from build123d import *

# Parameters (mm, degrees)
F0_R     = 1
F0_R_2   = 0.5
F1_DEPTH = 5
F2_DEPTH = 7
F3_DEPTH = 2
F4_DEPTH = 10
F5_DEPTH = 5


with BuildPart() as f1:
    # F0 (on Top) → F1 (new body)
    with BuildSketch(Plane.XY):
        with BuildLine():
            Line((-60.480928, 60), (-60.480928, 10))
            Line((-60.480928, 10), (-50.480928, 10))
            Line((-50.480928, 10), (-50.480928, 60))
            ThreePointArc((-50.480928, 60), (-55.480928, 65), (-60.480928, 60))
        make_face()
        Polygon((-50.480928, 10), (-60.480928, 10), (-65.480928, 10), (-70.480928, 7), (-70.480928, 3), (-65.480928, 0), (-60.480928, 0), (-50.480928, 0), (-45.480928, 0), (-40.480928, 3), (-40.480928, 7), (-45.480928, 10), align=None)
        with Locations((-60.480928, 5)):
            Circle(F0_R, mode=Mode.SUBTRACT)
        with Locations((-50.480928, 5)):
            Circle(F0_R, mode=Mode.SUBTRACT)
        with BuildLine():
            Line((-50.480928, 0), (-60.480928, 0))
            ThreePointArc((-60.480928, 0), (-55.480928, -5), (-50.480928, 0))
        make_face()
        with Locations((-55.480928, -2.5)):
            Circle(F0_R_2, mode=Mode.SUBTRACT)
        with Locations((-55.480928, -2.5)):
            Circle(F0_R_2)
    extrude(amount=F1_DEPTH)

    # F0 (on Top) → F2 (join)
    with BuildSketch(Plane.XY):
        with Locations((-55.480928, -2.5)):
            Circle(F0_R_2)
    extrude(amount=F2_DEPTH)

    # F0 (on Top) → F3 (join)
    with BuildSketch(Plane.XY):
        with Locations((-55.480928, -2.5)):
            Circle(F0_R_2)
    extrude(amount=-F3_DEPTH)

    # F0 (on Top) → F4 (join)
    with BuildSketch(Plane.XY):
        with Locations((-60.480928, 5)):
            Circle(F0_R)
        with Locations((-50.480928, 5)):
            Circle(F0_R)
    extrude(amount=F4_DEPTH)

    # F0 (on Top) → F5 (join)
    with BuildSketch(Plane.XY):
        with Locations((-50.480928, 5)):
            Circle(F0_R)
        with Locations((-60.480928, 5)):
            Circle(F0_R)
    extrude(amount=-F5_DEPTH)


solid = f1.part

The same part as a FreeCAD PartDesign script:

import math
import FreeCAD as App
import Part
import Sketcher

doc = App.newDocument("Part")
body = doc.addObject("PartDesign::Body", "Body")

# Sketch on XY plane
sketch1 = doc.addObject("Sketcher::SketchObject", "Sketch")
body.addObject(sketch1)
sketch1.AttachmentSupport = (doc.XY_Plane, [""])
sketch1.MapMode = "FlatFace"
sketch1.addGeometry(Part.LineSegment(App.Vector(-60.5, 60, 0), App.Vector(-60.5, 10, 0)), False)
sketch1.addGeometry(Part.LineSegment(App.Vector(-60.5, 10, 0), App.Vector(-65.5, 10, 0)), False)
sketch1.addGeometry(Part.LineSegment(App.Vector(-65.5, 10, 0), App.Vector(-70.5, 7, 0)), False)
sketch1.addGeometry(Part.LineSegment(App.Vector(-70.5, 7, 0), App.Vector(-70.5, 3, 0)), False)
sketch1.addGeometry(Part.LineSegment(App.Vector(-70.5, 3, 0), App.Vector(-65.5, 0, 0)), False)
sketch1.addGeometry(Part.LineSegment(App.Vector(-65.5, 0, 0), App.Vector(-60.5, 0, 0)), False)
sketch1.addGeometry(Part.ArcOfCircle(Part.Circle(App.Vector(-55.5, 0, 0), App.Vector(0, 0, 1), 5), math.radians(180), math.radians(360)), False)
sketch1.addGeometry(Part.LineSegment(App.Vector(-50.5, 0, 0), App.Vector(-45.5, 0, 0)), False)
sketch1.addGeometry(Part.LineSegment(App.Vector(-45.5, 0, 0), App.Vector(-40.5, 3, 0)), False)
sketch1.addGeometry(Part.LineSegment(App.Vector(-40.5, 3, 0), App.Vector(-40.5, 7, 0)), False)
sketch1.addGeometry(Part.LineSegment(App.Vector(-40.5, 7, 0), App.Vector(-45.5, 10, 0)), False)
sketch1.addGeometry(Part.LineSegment(App.Vector(-45.5, 10, 0), App.Vector(-50.5, 10, 0)), False)
sketch1.addGeometry(Part.LineSegment(App.Vector(-50.5, 10, 0), App.Vector(-50.5, 60, 0)), False)
sketch1.addGeometry(Part.ArcOfCircle(Part.Circle(App.Vector(-55.5, 60, 0), App.Vector(0, 0, 1), 5), math.radians(0), math.radians(180)), False)
sketch1.addGeometry(Part.Circle(App.Vector(-60.5, 5, 0), App.Vector(0, 0, 1), 1), False)
sketch1.addGeometry(Part.Circle(App.Vector(-50.5, 5, 0), App.Vector(0, 0, 1), 1), False)
sketch1.addConstraint(Sketcher.Constraint("Coincident", 0, 2, 1, 1))
sketch1.addConstraint(Sketcher.Constraint("Coincident", 1, 2, 2, 1))
sketch1.addConstraint(Sketcher.Constraint("Coincident", 2, 2, 3, 1))
sketch1.addConstraint(Sketcher.Constraint("Coincident", 3, 2, 4, 1))
sketch1.addConstraint(Sketcher.Constraint("Coincident", 4, 2, 5, 1))
sketch1.addConstraint(Sketcher.Constraint("Coincident", 5, 2, 6, 1))
sketch1.addConstraint(Sketcher.Constraint("Coincident", 6, 2, 7, 1))
sketch1.addConstraint(Sketcher.Constraint("Coincident", 7, 2, 8, 1))
sketch1.addConstraint(Sketcher.Constraint("Coincident", 8, 2, 9, 1))
sketch1.addConstraint(Sketcher.Constraint("Coincident", 9, 2, 10, 1))
sketch1.addConstraint(Sketcher.Constraint("Coincident", 10, 2, 11, 1))
sketch1.addConstraint(Sketcher.Constraint("Coincident", 11, 2, 12, 1))
sketch1.addConstraint(Sketcher.Constraint("Tangent", 12, 2, 13, 1))
sketch1.addConstraint(Sketcher.Constraint("Tangent", 13, 2, 0, 1))
sketch1.addConstraint(Sketcher.Constraint("Vertical", 0))
sketch1.addConstraint(Sketcher.Constraint("Horizontal", 1))
sketch1.addConstraint(Sketcher.Constraint("Vertical", 3))
sketch1.addConstraint(Sketcher.Constraint("Horizontal", 5))
sketch1.addConstraint(Sketcher.Constraint("Horizontal", 7))
sketch1.addConstraint(Sketcher.Constraint("Vertical", 9))
sketch1.addConstraint(Sketcher.Constraint("Horizontal", 11))
sketch1.addConstraint(Sketcher.Constraint("Vertical", 12))
sketch1.addConstraint(Sketcher.Constraint("Equal", 6, 13))
sketch1.addConstraint(Sketcher.Constraint("Equal", 14, 15))
sketch1.addConstraint(Sketcher.Constraint("PointOnObject", 6, 3, -1))
sketch1.addConstraint(Sketcher.Constraint("PointOnObject", 4, 2, -1))
sketch1.addConstraint(Sketcher.Constraint("PointOnObject", 6, 2, -1))
sketch1.addConstraint(Sketcher.Constraint("Parallel", 2, 8))
sketch1.addConstraint(Sketcher.Constraint("Parallel", 4, 10))
sketch1.addConstraint(Sketcher.Constraint("Horizontal", 14, 3, 15, 3))
sketch1.addConstraint(Sketcher.Constraint("Horizontal", 3, 2, 8, 2))
sketch1.addConstraint(Sketcher.Constraint("Horizontal", 2, 2, 9, 2))
sketch1.addConstraint(Sketcher.Constraint("Horizontal", 1, 2, 10, 2))
sketch1.addConstraint(Sketcher.Constraint("Vertical", 6, 3, 13, 3))
sketch1.addConstraint(Sketcher.Constraint("Vertical", 14, 3, 0, 2))
sketch1.addConstraint(Sketcher.Constraint("Vertical", 1, 2, 4, 2))
sketch1.addConstraint(Sketcher.Constraint("Vertical", 15, 3, 6, 2))
sketch1.addConstraint(Sketcher.Constraint("Vertical", 7, 2, 10, 2))
sketch1.addConstraint(Sketcher.Constraint("Equal", 5, 7))
sketch1.addConstraint(Sketcher.Constraint("Diameter", 14, 2.0))
sketch1.addConstraint(Sketcher.Constraint("Radius", 6, 5.0))
sketch1.addConstraint(Sketcher.Constraint("DistanceX", 1, 2, 1, 1, 5.0))
sketch1.addConstraint(Sketcher.Constraint("DistanceY", 0, 2, 0, 1, 50.0))
sketch1.addConstraint(Sketcher.Constraint("DistanceY", 3, 2, 3, 1, 4.0))
sketch1.addConstraint(Sketcher.Constraint("DistanceY", -1, 1, 13, 3, 60.0))
sketch1.addConstraint(Sketcher.Constraint("DistanceY", -1, 1, 14, 3, 5.0))
sketch1.addConstraint(Sketcher.Constraint("DistanceX", 2, 2, 1, 2, 5.0))
sketch1.addConstraint(Sketcher.Constraint("DistanceX", 1, 2, -1, 1, 65.480928))
pad1 = doc.addObject("PartDesign::Pad", "Pad")
body.addObject(pad1)
pad1.Profile = sketch1
pad1.Length = 5

# Sketch on XY plane
sketch2 = doc.addObject("Sketcher::SketchObject", "Sketch001")
body.addObject(sketch2)
sketch2.AttachmentSupport = (doc.XY_Plane, [""])
sketch2.MapMode = "FlatFace"
sketch2.addGeometry(Part.Circle(App.Vector(-55.5, -2.5, 0), App.Vector(0, 0, 1), 0.5), False)
sketch2.addConstraint(Sketcher.Constraint("Diameter", 0, 1.0))
sketch2.addConstraint(Sketcher.Constraint("DistanceY", 0, 3, -1, 1, 2.5))
sketch2.addConstraint(Sketcher.Constraint("DistanceX", 0, 3, -1, 1, 55.480928))
pad2 = doc.addObject("PartDesign::Pad", "Pad001")
body.addObject(pad2)
pad2.Profile = sketch2
pad2.Length = 7

# Sketch on XY plane
sketch3 = doc.addObject("Sketcher::SketchObject", "Sketch002")
body.addObject(sketch3)
sketch3.AttachmentSupport = (doc.XY_Plane, [""])
sketch3.MapMode = "FlatFace"
sketch3.addGeometry(Part.Circle(App.Vector(-55.5, -2.5, 0), App.Vector(0, 0, 1), 0.5), False)
sketch3.addConstraint(Sketcher.Constraint("Diameter", 0, 1.0))
sketch3.addConstraint(Sketcher.Constraint("DistanceY", 0, 3, -1, 1, 2.5))
sketch3.addConstraint(Sketcher.Constraint("DistanceX", 0, 3, -1, 1, 55.480928))
pad3 = doc.addObject("PartDesign::Pad", "Pad002")
body.addObject(pad3)
pad3.Profile = sketch3
pad3.Length = 2
pad3.Reversed = True

# Sketch on XY plane
sketch4 = doc.addObject("Sketcher::SketchObject", "Sketch003")
body.addObject(sketch4)
sketch4.AttachmentSupport = (doc.XY_Plane, [""])
sketch4.MapMode = "FlatFace"
sketch4.addGeometry(Part.Circle(App.Vector(-60.5, 5, 0), App.Vector(0, 0, 1), 1), False)
sketch4.addGeometry(Part.Circle(App.Vector(-50.5, 5, 0), App.Vector(0, 0, 1), 1), False)
sketch4.addConstraint(Sketcher.Constraint("Equal", 0, 1))
sketch4.addConstraint(Sketcher.Constraint("Horizontal", 0, 3, 1, 3))
sketch4.addConstraint(Sketcher.Constraint("Diameter", 0, 2.0))
sketch4.addConstraint(Sketcher.Constraint("DistanceY", -1, 1, 0, 3, 5.0))
sketch4.addConstraint(Sketcher.Constraint("DistanceX", 0, 3, 1, 3, 10.0))
sketch4.addConstraint(Sketcher.Constraint("DistanceX", 0, 3, -1, 1, 60.480928))
pad4 = doc.addObject("PartDesign::Pad", "Pad003")
body.addObject(pad4)
pad4.Profile = sketch4
pad4.Length = 10

# Sketch on XY plane
sketch5 = doc.addObject("Sketcher::SketchObject", "Sketch004")
body.addObject(sketch5)
sketch5.AttachmentSupport = (doc.XY_Plane, [""])
sketch5.MapMode = "FlatFace"
sketch5.addGeometry(Part.Circle(App.Vector(-50.5, 5, 0), App.Vector(0, 0, 1), 1), False)
sketch5.addGeometry(Part.Circle(App.Vector(-60.5, 5, 0), App.Vector(0, 0, 1), 1), False)
sketch5.addConstraint(Sketcher.Constraint("Equal", 0, 1))
sketch5.addConstraint(Sketcher.Constraint("Horizontal", 0, 3, 1, 3))
sketch5.addConstraint(Sketcher.Constraint("Diameter", 0, 2.0))
sketch5.addConstraint(Sketcher.Constraint("DistanceY", -1, 1, 0, 3, 5.0))
sketch5.addConstraint(Sketcher.Constraint("DistanceX", 1, 3, 0, 3, 10.0))
sketch5.addConstraint(Sketcher.Constraint("DistanceX", 0, 3, -1, 1, 50.480928))
pad5 = doc.addObject("PartDesign::Pad", "Pad004")
body.addObject(pad5)
pad5.Profile = sketch5
pad5.Length = 5
pad5.Reversed = True

doc.recompute()
